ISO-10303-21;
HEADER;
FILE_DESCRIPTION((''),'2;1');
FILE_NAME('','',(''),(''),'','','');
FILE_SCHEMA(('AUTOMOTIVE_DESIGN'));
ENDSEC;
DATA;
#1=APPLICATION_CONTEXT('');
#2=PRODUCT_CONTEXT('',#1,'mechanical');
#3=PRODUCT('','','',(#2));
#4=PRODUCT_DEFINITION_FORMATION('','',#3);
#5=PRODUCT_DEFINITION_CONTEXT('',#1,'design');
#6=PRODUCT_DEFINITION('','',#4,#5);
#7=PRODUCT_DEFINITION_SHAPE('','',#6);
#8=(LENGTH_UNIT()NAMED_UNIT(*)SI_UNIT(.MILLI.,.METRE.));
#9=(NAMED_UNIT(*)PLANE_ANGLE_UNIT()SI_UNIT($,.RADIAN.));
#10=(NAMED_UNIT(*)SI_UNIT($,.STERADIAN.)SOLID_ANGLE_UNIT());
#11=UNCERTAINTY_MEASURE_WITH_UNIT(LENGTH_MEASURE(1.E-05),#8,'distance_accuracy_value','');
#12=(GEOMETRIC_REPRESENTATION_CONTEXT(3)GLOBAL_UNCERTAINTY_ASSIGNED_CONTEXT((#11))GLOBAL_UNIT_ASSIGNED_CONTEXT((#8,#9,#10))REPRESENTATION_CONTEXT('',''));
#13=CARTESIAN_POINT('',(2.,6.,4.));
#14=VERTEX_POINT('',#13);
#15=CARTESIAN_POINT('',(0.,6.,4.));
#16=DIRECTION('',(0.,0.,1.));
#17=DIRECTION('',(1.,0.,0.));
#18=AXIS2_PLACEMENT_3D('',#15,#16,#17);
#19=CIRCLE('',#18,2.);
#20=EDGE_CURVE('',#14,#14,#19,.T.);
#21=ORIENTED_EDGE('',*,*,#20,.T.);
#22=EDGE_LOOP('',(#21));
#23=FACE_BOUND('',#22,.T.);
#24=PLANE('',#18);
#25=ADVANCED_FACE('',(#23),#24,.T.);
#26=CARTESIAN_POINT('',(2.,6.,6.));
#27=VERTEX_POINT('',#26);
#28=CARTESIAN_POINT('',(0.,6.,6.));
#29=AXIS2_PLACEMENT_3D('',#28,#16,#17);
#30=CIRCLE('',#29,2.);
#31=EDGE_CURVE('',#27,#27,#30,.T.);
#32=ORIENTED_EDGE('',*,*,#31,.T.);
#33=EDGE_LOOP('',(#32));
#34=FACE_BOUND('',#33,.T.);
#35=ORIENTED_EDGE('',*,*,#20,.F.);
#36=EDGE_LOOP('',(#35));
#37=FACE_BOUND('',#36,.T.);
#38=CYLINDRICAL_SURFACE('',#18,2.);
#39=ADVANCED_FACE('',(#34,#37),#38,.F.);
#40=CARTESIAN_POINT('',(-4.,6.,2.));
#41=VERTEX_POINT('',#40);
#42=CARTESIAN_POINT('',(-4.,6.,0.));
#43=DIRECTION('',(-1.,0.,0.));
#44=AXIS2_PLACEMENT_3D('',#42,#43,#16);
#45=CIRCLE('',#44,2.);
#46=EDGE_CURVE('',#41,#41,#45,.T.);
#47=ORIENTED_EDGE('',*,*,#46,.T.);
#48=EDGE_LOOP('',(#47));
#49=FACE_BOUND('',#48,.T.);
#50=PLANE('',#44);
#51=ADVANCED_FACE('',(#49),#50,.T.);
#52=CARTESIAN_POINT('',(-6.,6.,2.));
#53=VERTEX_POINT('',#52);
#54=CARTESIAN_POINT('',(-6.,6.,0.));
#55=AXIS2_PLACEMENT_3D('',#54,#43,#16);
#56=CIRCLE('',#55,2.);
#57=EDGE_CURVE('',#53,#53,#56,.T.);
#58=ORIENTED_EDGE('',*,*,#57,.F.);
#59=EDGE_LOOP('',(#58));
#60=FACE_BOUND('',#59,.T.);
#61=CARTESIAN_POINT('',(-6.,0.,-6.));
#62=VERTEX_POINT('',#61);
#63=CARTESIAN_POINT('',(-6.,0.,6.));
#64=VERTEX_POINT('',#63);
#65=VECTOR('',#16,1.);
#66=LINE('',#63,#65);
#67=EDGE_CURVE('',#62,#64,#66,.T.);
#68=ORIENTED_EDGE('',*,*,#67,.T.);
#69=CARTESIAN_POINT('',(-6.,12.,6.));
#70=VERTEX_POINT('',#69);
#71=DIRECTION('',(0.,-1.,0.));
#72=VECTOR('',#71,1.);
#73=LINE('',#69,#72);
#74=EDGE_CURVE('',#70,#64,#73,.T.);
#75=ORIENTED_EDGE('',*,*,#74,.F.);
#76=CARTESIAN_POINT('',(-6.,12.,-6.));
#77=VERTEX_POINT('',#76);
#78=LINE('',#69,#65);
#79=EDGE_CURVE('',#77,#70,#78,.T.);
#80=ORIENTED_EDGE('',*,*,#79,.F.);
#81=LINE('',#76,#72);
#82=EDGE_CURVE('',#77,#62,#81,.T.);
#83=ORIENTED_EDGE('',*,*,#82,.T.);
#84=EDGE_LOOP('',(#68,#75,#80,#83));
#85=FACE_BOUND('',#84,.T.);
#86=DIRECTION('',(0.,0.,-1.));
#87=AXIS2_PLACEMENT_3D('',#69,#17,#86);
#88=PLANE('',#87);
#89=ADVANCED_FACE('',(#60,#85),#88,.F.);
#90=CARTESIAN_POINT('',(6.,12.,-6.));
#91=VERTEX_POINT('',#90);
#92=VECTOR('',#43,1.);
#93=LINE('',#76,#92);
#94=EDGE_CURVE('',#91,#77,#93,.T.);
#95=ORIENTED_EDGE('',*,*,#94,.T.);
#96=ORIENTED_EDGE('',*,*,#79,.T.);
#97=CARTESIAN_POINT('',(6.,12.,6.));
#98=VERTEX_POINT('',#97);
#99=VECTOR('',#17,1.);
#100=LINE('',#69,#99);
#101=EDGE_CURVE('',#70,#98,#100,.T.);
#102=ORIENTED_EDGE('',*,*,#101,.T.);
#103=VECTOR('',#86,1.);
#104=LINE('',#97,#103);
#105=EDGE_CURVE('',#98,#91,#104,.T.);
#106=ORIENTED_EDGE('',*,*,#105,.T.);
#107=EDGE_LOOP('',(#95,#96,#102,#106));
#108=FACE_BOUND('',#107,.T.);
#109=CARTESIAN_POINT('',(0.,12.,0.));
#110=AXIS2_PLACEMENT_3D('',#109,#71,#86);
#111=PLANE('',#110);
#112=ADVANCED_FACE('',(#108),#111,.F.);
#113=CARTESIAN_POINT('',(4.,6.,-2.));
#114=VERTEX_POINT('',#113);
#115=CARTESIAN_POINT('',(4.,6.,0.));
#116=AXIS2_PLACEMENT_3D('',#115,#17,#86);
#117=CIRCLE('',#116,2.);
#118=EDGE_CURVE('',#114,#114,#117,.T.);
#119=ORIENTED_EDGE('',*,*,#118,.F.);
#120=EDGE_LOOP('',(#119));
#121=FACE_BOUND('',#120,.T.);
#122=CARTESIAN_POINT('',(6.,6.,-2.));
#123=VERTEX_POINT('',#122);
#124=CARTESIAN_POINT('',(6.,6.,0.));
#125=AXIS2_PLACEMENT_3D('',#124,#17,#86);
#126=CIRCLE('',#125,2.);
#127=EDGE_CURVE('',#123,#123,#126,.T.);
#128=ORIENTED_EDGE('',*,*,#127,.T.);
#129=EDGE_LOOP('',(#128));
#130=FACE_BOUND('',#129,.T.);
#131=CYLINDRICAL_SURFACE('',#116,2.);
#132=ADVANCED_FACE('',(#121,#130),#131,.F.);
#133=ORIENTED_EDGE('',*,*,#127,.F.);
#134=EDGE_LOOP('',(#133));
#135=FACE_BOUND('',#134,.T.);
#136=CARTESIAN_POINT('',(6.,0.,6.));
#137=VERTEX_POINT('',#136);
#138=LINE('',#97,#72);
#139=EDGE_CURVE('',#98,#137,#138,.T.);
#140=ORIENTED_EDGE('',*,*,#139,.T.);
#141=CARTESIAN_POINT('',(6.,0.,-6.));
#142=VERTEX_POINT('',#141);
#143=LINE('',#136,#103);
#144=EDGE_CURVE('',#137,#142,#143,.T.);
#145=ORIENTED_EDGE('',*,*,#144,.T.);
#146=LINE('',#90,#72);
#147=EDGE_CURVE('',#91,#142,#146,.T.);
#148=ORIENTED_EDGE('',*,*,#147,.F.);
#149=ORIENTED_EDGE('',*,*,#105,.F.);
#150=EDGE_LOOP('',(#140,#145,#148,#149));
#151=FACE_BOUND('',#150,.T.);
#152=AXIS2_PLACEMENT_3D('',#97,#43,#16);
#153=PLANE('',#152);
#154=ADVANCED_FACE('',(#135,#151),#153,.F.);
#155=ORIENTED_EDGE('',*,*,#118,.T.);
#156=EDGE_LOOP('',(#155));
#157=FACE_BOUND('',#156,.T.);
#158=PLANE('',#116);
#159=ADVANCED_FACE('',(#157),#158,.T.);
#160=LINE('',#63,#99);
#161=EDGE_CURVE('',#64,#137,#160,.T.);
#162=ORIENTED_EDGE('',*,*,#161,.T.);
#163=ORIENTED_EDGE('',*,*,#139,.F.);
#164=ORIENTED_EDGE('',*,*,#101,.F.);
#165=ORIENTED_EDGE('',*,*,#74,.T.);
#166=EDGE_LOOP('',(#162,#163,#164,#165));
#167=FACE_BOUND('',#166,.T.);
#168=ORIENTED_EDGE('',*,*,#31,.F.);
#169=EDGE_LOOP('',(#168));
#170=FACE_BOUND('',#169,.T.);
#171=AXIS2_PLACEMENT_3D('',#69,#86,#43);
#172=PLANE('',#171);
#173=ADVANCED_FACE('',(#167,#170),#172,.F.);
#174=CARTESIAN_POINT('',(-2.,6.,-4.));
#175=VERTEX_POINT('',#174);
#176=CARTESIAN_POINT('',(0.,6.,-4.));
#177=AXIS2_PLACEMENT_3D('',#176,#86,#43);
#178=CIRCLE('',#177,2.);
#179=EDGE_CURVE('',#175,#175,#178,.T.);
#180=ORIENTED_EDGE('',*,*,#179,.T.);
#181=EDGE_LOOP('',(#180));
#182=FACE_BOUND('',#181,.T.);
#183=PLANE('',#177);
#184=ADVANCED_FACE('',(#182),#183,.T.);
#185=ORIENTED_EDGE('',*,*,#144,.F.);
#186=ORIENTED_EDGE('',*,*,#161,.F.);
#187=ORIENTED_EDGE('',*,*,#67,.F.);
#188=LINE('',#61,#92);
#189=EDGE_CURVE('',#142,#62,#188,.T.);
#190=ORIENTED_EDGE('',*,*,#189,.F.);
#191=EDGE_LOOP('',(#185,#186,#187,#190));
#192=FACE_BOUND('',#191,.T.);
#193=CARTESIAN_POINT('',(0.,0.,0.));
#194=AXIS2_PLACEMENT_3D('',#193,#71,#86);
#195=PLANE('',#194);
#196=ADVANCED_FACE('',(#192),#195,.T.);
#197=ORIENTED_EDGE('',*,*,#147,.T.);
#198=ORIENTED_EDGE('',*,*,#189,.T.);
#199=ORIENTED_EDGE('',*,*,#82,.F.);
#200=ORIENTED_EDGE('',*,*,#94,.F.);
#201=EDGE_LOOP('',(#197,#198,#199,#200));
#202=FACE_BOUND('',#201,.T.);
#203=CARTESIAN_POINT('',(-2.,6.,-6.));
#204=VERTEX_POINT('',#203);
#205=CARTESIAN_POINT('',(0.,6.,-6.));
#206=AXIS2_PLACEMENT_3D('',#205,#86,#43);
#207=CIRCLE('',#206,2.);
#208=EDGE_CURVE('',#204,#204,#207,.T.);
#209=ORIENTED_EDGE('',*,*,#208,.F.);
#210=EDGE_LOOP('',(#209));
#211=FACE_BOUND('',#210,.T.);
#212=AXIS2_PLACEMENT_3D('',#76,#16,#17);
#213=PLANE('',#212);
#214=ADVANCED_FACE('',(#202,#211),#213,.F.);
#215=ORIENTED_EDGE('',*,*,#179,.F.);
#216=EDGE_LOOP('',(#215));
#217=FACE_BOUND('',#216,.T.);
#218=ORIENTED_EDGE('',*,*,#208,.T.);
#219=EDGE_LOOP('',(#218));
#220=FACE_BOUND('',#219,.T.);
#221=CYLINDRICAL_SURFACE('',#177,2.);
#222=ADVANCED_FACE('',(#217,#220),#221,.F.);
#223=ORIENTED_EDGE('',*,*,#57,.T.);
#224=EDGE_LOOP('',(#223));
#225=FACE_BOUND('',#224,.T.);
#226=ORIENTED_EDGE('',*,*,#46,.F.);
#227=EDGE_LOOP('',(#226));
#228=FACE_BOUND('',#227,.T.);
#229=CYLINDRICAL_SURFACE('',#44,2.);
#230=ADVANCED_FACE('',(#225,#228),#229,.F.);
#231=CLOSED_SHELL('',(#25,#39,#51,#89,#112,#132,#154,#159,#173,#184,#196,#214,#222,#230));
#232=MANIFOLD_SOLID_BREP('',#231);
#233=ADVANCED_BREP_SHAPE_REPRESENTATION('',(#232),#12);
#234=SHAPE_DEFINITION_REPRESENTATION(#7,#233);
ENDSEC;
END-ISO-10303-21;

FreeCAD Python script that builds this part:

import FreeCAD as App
import Part
import Sketcher

V = App.Vector


def add_polygon(sketch, points):
    """Adds a closed chain of lines whose ends are joined by coincident constraints."""
    first, n = sketch.GeometryCount, len(points)
    for a, b in zip(points, points[1:] + points[:1]):
        sketch.addGeometry(Part.LineSegment(App.Vector(*a, 0), App.Vector(*b, 0)), False)
    for i in range(n):
        sketch.addConstraint(Sketcher.Constraint("Coincident", first + i, 2, first + (i + 1) % n, 1))

doc = App.newDocument("Part")
body = doc.addObject("PartDesign::Body", "Body")

# Sketch on XZ plane
sketch1 = body.newObject("Sketcher::SketchObject", "Sketch")
sketch1.AttachmentSupport = (doc.getObject("XZ_Plane"), [""])
sketch1.MapMode = "FlatFace"
add_polygon(sketch1, [(-6, -6), (-6, 6), (6, 6), (6, -6)])  # lines 0-3
sketch1.addConstraint(Sketcher.Constraint("Vertical", 0))
sketch1.addConstraint(Sketcher.Constraint("Horizontal", 1))
sketch1.addConstraint(Sketcher.Constraint("Vertical", 2))
sketch1.addConstraint(Sketcher.Constraint("Horizontal", 3))
sketch1.addConstraint(Sketcher.Constraint("Symmetric", 0, 2, 2, 2, -1, 1))
sketch1.addConstraint(Sketcher.Constraint("Equal", 3, 0))
sketch1.addConstraint(Sketcher.Constraint("DistanceX", 1, 1, 1, 2, 12.0))
pad1 = body.newObject("PartDesign::Pad", "Pad")
pad1.Profile = sketch1
pad1.Length = 12
pad1.Reversed = True

# Sketch on XY plane
sketch2 = body.newObject("Sketcher::SketchObject", "Sketch001")
sketch2.AttachmentSupport = (doc.getObject("XY_Plane"), [""])
sketch2.MapMode = "FlatFace"
sketch2.AttachmentOffset = App.Placement(V(0, 0, 6), App.Rotation())
sketch2.addGeometry(Part.Circle(V(0, 6, 0), V(0, 0, 1), 2), False)
sketch2.addConstraint(Sketcher.Constraint("PointOnObject", 0, 3, -2))
sketch2.addConstraint(Sketcher.Constraint("Diameter", 0, 4.0))
sketch2.addConstraint(Sketcher.Constraint("DistanceY", -1, 1, 0, 3, 6.0))
pocket1 = body.newObject("PartDesign::Pocket", "Pocket")
pocket1.Profile = sketch2
pocket1.Length = 2
doc.recompute()

polarpattern = body.newObject("PartDesign::PolarPattern", "PolarPattern")
polarpattern.Originals = [pocket1]
polarpattern.Axis = (doc.getObject("Y_Axis"), [""])
polarpattern.Angle = 360
polarpattern.Occurrences = 4
body.Tip = polarpattern

doc.recompute()
